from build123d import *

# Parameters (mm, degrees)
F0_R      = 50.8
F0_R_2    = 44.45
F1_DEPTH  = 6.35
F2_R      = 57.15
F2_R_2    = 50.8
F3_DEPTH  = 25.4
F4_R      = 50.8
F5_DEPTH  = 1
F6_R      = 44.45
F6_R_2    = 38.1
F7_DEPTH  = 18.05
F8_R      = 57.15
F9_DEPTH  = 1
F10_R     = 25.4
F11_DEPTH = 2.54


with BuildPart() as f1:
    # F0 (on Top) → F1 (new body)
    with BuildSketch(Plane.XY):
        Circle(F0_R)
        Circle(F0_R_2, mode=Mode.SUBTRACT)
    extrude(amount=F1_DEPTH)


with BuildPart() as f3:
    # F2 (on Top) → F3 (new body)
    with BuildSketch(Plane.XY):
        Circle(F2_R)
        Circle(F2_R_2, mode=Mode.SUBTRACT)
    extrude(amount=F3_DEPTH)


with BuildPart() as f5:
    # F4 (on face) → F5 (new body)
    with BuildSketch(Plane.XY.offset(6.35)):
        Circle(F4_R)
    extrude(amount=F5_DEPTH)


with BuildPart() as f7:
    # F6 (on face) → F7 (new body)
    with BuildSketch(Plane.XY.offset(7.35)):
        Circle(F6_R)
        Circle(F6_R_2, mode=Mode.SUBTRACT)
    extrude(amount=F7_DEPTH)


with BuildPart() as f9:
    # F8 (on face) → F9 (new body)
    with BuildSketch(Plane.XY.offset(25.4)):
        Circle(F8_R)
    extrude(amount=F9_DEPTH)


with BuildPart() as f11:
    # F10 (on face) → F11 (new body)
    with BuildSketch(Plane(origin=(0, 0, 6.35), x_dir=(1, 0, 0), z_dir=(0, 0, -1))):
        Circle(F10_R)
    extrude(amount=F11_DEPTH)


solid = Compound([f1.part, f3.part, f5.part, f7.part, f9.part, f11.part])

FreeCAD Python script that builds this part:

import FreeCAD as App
import Part
import Sketcher
from FreeCAD import Vector
Q = App.Units.Quantity

doc = App.newDocument("Part")
body = doc.addObject("PartDesign::Body", "Body")

sketch1 = body.newObject("Sketcher::SketchObject", "Sketch")
sketch1.AttachmentSupport = (doc.getObject("XY_Plane"), [""])
sketch1.MapMode = "FlatFace"
sketch1.addGeometry(Part.Circle(Vector(0, 0, 0), Vector(0, 0, 1), 51), False)
sketch1.addGeometry(Part.Circle(Vector(0, 0, 0), Vector(0, 0, 1), 44), False)
sketch1.addConstraint(Sketcher.Constraint("Coincident", 0, 3, -1, 1))
sketch1.addConstraint(Sketcher.Constraint("Coincident", 1, 3, -1, 1))
sketch1.addConstraint(Sketcher.Constraint("Diameter", 0, Q("4 in")))
sketch1.addConstraint(Sketcher.Constraint("Diameter", 1, Q("3.5 in")))
pad1 = body.newObject("PartDesign::Pad", "Pad")
pad1.Profile = sketch1
pad1.Length = Q("0.25 in")
body2 = doc.addObject("PartDesign::Body", "Body001")

sketch2 = body2.newObject("Sketcher::SketchObject", "Sketch001")
sketch2.AttachmentSupport = (doc.getObject("XY_Plane001"), [""])
sketch2.MapMode = "FlatFace"
sketch2.addGeometry(Part.Circle(Vector(0, 0, 0), Vector(0, 0, 1), 57), False)
sketch2.addGeometry(Part.Circle(Vector(0, 0, 0), Vector(0, 0, 1), 51), False)
sketch2.addConstraint(Sketcher.Constraint("Coincident", 0, 3, -1, 1))
sketch2.addConstraint(Sketcher.Constraint("Coincident", 1, 3, -1, 1))
sketch2.addConstraint(Sketcher.Constraint("Diameter", 1, Q("4 in")))
sketch2.addConstraint(Sketcher.Constraint("Diameter", 0, Q("4.5 in")))
pad2 = body2.newObject("PartDesign::Pad", "Pad001")
pad2.Profile = sketch2
pad2.Length = Q("1 in")
body3 = doc.addObject("PartDesign::Body", "Body002")

sketch3 = body3.newObject("Sketcher::SketchObject", "Sketch002")
sketch3.AttachmentSupport = (doc.getObject("XY_Plane002"), [""])
sketch3.MapMode = "FlatFace"
sketch3.AttachmentOffset = App.Placement(Vector(0, 0, 0.25 * 25.4), App.Rotation())
sketch3.addGeometry(Part.Circle(Vector(0, 0, 0), Vector(0, 0, 1), 51), False)
sketch3.addConstraint(Sketcher.Constraint("Coincident", 0, 3, -1, 1))
sketch3.addConstraint(Sketcher.Constraint("Diameter", 0, Q("4 in")))
pad3 = body3.newObject("PartDesign::Pad", "Pad002")
pad3.Profile = sketch3
pad3.Length = 1
body4 = doc.addObject("PartDesign::Body", "Body003")

sketch4 = body4.newObject("Sketcher::SketchObject", "Sketch003")
sketch4.AttachmentSupport = (doc.getObject("XY_Plane003"), [""])
sketch4.MapMode = "FlatFace"
sketch4.AttachmentOffset = App.Placement(Vector(0, 0, 7.35), App.Rotation())
sketch4.addGeometry(Part.Circle(Vector(0, 0, 0), Vector(0, 0, 1), 44), False)
sketch4.addGeometry(Part.Circle(Vector(0, 0, 0), Vector(0, 0, 1), 38), False)
sketch4.addConstraint(Sketcher.Constraint("Coincident", 0, 3, -1, 1))
sketch4.addConstraint(Sketcher.Constraint("Coincident", 1, 3, -1, 1))
sketch4.addConstraint(Sketcher.Constraint("Diameter", 1, Q("3 in")))
sketch4.addConstraint(Sketcher.Constraint("Diameter", 0, Q("3.5 in")))
pad4 = body4.newObject("PartDesign::Pad", "Pad003")
pad4.Profile = sketch4
pad4.Length = 18.05
body5 = doc.addObject("PartDesign::Body", "Body004")

sketch5 = body5.newObject("Sketcher::SketchObject", "Sketch004")
sketch5.AttachmentSupport = (doc.getObject("XY_Plane004"), [""])
sketch5.MapMode = "FlatFace"
sketch5.AttachmentOffset = App.Placement(Vector(0, 0, 1 * 25.4), App.Rotation())
sketch5.addGeometry(Part.Circle(Vector(0, 0, 0), Vector(0, 0, 1), 57), False)
sketch5.addConstraint(Sketcher.Constraint("Coincident", 0, 3, -1, 1))
sketch5.addConstraint(Sketcher.Constraint("Diameter", 0, Q("4.5 in")))
pad5 = body5.newObject("PartDesign::Pad", "Pad004")
pad5.Profile = sketch5
pad5.Length = 1
body6 = doc.addObject("PartDesign::Body", "Body005")

sketch6 = body6.newObject("Sketcher::SketchObject", "Sketch005")
sketch6.AttachmentSupport = (doc.getObject("XY_Plane005"), [""])
sketch6.MapMode = "FlatFace"
sketch6.AttachmentOffset = App.Placement(Vector(0, 0, 0.25 * 25.4), App.Rotation())
sketch6.addGeometry(Part.Circle(Vector(0, 0, 0), Vector(0, 0, 1), 25), False)
sketch6.addConstraint(Sketcher.Constraint("Coincident", 0, 3, -1, 1))
sketch6.addConstraint(Sketcher.Constraint("Diameter", 0, Q("2 in")))
pad6 = body6.newObject("PartDesign::Pad", "Pad005")
pad6.Profile = sketch6
pad6.Length = Q("0.1 in")
pad6.Reversed = True

doc.recompute()
